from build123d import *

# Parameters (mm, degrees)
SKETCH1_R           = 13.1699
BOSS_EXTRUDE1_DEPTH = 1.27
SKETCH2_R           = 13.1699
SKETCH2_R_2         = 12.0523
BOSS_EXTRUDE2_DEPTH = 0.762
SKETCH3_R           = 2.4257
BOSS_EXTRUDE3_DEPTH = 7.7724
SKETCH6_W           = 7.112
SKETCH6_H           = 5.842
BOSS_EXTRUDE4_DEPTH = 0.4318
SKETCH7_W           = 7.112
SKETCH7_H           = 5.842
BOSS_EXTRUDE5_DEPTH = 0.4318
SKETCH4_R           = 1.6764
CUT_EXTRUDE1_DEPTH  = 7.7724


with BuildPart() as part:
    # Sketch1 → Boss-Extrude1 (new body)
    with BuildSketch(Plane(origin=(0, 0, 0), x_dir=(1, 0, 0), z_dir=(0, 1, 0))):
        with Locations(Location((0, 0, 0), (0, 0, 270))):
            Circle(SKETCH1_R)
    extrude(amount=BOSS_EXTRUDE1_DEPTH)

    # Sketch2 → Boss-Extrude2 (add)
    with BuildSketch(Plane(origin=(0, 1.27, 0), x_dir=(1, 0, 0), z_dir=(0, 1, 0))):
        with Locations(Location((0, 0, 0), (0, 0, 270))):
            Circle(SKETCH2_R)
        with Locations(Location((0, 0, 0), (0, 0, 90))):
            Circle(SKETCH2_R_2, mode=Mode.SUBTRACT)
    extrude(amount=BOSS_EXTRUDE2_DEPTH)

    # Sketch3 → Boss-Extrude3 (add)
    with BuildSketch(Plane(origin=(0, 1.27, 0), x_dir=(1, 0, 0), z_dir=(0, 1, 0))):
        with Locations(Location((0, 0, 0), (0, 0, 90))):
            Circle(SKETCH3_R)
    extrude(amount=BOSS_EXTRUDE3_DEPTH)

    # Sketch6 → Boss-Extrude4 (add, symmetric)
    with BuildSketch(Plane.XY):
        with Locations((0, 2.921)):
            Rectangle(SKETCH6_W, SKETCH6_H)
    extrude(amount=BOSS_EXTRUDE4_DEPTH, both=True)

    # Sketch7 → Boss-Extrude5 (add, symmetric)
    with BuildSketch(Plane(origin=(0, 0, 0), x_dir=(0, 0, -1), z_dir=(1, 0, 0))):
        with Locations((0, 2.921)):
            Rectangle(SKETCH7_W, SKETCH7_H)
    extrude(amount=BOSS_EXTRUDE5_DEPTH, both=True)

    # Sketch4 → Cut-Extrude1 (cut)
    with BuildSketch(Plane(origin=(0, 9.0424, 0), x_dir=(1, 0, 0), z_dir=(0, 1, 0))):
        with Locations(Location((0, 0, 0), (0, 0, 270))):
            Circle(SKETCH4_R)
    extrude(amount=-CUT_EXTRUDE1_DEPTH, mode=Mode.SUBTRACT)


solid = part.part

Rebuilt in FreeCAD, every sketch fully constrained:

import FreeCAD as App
import Part
import Sketcher

V = App.Vector
Q = App.Units.Quantity


def add_polygon(sketch, points):
    """Adds a closed chain of lines whose ends are joined by coincident constraints."""
    first, n = sketch.GeometryCount, len(points)
    for a, b in zip(points, points[1:] + points[:1]):
        sketch.addGeometry(Part.LineSegment(App.Vector(*a, 0), App.Vector(*b, 0)), False)
    for i in range(n):
        sketch.addConstraint(Sketcher.Constraint("Coincident", first + i, 2, first + (i + 1) % n, 1))

doc = App.newDocument("Part")
body = doc.addObject("PartDesign::Body", "Body")

sketch1 = body.newObject("Sketcher::SketchObject", "Sketch")
sketch1.AttachmentSupport = (doc.getObject("XZ_Plane"), [""])
sketch1.MapMode = "FlatFace"
sketch1.addGeometry(Part.Circle(V(0, 0, 0), V(0, 0, 1), 13), False)
sketch1.addConstraint([
    Sketcher.Constraint("Coincident", 0, 3, -1, 1),
    Sketcher.Constraint("Diameter", 0, Q("1.037 in")),
])
pad1 = body.newObject("PartDesign::Pad", "Pad")
pad1.Profile = sketch1
pad1.Length = Q("0.05 in")
pad1.Reversed = True

sketch2 = body.newObject("Sketcher::SketchObject", "Sketch001")
sketch2.AttachmentSupport = (doc.getObject("XZ_Plane"), [""])
sketch2.MapMode = "FlatFace"
sketch2.AttachmentOffset = App.Placement(V(0, 0, -0.05 * 25.4), App.Rotation())
sketch2.addGeometry([
    Part.Circle(V(0, 0, 0), V(0, 0, 1), 13),
    Part.Circle(V(0, 0, 0), V(0, 0, 1), 12),
], False)
sketch2.addConstraint([
    Sketcher.Constraint("Coincident", 0, 3, -1, 1),
    Sketcher.Constraint("Coincident", 1, 3, -1, 1),
    Sketcher.Constraint("Diameter", 0, Q("1.037 in")),
    Sketcher.Constraint("Diameter", 1, Q("0.949 in")),
])
pad2 = body.newObject("PartDesign::Pad", "Pad001")
pad2.Profile = sketch2
pad2.Length = Q("0.03 in")
pad2.Reversed = True

sketch3 = body.newObject("Sketcher::SketchObject", "Sketch002")
sketch3.AttachmentSupport = (doc.getObject("XZ_Plane"), [""])
sketch3.MapMode = "FlatFace"
sketch3.AttachmentOffset = App.Placement(V(0, 0, -0.05 * 25.4), App.Rotation())
sketch3.addGeometry(Part.Circle(V(0, 0, 0), V(0, 0, 1), 2.4), False)
sketch3.addConstraint([
    Sketcher.Constraint("Coincident", 0, 3, -1, 1),
    Sketcher.Constraint("Diameter", 0, Q("0.191 in")),
])
pad3 = body.newObject("PartDesign::Pad", "Pad002")
pad3.Profile = sketch3
pad3.Length = Q("0.306 in")
pad3.Reversed = True

sketch4 = body.newObject("Sketcher::SketchObject", "Sketch003")
sketch4.AttachmentSupport = (doc.getObject("XY_Plane"), [""])
sketch4.MapMode = "FlatFace"
add_polygon(sketch4, [(-4, 6), (-4, 0), (4, 0), (4, 6)])
sketch4.addConstraint([
    Sketcher.Constraint("Vertical", 0),
    Sketcher.Constraint("Horizontal", 1),
    Sketcher.Constraint("Vertical", 2),
    Sketcher.Constraint("Horizontal", 3),
    Sketcher.Constraint("Symmetric", 0, 2, 1, 2, -1, 1),
    Sketcher.Constraint("DistanceX", 1, 1, 1, 2, Q("0.28 in")),
    Sketcher.Constraint("DistanceY", 0, 2, 0, 1, Q("0.23 in")),
])
pad4 = body.newObject("PartDesign::Pad", "Pad003")
pad4.Profile = sketch4
pad4.Length = Q("0.034 in")
pad4.Midplane = True

sketch5 = body.newObject("Sketcher::SketchObject", "Sketch004")
sketch5.AttachmentSupport = (doc.getObject("YZ_Plane"), [""])
sketch5.MapMode = "FlatFace"
add_polygon(sketch5, [(6, 4), (0, 4), (0, -4), (6, -4)])
sketch5.addConstraint([
    Sketcher.Constraint("Horizontal", 0),
    Sketcher.Constraint("Vertical", 1),
    Sketcher.Constraint("Horizontal", 2),
    Sketcher.Constraint("Vertical", 3),
    Sketcher.Constraint("Symmetric", 0, 2, 1, 2, -1, 1),
    Sketcher.Constraint("DistanceX", 0, 2, 0, 1, Q("0.23 in")),
    Sketcher.Constraint("DistanceY", 1, 2, 1, 1, Q("0.28 in")),
])
pad5 = body.newObject("PartDesign::Pad", "Pad004")
pad5.Profile = sketch5
pad5.Length = Q("0.034 in")
pad5.Midplane = True

sketch6 = body.newObject("Sketcher::SketchObject", "Sketch005")
sketch6.AttachmentSupport = (doc.getObject("XZ_Plane"), [""])
sketch6.MapMode = "FlatFace"
sketch6.AttachmentOffset = App.Placement(V(0, 0, -0.356 * 25.4), App.Rotation())
sketch6.addGeometry(Part.Circle(V(0, 0, 0), V(0, 0, 1), 1.7), False)
sketch6.addConstraint([
    Sketcher.Constraint("Coincident", 0, 3, -1, 1),
    Sketcher.Constraint("Diameter", 0, Q("0.132 in")),
])
pocket1 = body.newObject("PartDesign::Pocket", "Pocket")
pocket1.Profile = sketch6
pocket1.Length = Q("0.306 in")
pocket1.Reversed = True

doc.recompute()
